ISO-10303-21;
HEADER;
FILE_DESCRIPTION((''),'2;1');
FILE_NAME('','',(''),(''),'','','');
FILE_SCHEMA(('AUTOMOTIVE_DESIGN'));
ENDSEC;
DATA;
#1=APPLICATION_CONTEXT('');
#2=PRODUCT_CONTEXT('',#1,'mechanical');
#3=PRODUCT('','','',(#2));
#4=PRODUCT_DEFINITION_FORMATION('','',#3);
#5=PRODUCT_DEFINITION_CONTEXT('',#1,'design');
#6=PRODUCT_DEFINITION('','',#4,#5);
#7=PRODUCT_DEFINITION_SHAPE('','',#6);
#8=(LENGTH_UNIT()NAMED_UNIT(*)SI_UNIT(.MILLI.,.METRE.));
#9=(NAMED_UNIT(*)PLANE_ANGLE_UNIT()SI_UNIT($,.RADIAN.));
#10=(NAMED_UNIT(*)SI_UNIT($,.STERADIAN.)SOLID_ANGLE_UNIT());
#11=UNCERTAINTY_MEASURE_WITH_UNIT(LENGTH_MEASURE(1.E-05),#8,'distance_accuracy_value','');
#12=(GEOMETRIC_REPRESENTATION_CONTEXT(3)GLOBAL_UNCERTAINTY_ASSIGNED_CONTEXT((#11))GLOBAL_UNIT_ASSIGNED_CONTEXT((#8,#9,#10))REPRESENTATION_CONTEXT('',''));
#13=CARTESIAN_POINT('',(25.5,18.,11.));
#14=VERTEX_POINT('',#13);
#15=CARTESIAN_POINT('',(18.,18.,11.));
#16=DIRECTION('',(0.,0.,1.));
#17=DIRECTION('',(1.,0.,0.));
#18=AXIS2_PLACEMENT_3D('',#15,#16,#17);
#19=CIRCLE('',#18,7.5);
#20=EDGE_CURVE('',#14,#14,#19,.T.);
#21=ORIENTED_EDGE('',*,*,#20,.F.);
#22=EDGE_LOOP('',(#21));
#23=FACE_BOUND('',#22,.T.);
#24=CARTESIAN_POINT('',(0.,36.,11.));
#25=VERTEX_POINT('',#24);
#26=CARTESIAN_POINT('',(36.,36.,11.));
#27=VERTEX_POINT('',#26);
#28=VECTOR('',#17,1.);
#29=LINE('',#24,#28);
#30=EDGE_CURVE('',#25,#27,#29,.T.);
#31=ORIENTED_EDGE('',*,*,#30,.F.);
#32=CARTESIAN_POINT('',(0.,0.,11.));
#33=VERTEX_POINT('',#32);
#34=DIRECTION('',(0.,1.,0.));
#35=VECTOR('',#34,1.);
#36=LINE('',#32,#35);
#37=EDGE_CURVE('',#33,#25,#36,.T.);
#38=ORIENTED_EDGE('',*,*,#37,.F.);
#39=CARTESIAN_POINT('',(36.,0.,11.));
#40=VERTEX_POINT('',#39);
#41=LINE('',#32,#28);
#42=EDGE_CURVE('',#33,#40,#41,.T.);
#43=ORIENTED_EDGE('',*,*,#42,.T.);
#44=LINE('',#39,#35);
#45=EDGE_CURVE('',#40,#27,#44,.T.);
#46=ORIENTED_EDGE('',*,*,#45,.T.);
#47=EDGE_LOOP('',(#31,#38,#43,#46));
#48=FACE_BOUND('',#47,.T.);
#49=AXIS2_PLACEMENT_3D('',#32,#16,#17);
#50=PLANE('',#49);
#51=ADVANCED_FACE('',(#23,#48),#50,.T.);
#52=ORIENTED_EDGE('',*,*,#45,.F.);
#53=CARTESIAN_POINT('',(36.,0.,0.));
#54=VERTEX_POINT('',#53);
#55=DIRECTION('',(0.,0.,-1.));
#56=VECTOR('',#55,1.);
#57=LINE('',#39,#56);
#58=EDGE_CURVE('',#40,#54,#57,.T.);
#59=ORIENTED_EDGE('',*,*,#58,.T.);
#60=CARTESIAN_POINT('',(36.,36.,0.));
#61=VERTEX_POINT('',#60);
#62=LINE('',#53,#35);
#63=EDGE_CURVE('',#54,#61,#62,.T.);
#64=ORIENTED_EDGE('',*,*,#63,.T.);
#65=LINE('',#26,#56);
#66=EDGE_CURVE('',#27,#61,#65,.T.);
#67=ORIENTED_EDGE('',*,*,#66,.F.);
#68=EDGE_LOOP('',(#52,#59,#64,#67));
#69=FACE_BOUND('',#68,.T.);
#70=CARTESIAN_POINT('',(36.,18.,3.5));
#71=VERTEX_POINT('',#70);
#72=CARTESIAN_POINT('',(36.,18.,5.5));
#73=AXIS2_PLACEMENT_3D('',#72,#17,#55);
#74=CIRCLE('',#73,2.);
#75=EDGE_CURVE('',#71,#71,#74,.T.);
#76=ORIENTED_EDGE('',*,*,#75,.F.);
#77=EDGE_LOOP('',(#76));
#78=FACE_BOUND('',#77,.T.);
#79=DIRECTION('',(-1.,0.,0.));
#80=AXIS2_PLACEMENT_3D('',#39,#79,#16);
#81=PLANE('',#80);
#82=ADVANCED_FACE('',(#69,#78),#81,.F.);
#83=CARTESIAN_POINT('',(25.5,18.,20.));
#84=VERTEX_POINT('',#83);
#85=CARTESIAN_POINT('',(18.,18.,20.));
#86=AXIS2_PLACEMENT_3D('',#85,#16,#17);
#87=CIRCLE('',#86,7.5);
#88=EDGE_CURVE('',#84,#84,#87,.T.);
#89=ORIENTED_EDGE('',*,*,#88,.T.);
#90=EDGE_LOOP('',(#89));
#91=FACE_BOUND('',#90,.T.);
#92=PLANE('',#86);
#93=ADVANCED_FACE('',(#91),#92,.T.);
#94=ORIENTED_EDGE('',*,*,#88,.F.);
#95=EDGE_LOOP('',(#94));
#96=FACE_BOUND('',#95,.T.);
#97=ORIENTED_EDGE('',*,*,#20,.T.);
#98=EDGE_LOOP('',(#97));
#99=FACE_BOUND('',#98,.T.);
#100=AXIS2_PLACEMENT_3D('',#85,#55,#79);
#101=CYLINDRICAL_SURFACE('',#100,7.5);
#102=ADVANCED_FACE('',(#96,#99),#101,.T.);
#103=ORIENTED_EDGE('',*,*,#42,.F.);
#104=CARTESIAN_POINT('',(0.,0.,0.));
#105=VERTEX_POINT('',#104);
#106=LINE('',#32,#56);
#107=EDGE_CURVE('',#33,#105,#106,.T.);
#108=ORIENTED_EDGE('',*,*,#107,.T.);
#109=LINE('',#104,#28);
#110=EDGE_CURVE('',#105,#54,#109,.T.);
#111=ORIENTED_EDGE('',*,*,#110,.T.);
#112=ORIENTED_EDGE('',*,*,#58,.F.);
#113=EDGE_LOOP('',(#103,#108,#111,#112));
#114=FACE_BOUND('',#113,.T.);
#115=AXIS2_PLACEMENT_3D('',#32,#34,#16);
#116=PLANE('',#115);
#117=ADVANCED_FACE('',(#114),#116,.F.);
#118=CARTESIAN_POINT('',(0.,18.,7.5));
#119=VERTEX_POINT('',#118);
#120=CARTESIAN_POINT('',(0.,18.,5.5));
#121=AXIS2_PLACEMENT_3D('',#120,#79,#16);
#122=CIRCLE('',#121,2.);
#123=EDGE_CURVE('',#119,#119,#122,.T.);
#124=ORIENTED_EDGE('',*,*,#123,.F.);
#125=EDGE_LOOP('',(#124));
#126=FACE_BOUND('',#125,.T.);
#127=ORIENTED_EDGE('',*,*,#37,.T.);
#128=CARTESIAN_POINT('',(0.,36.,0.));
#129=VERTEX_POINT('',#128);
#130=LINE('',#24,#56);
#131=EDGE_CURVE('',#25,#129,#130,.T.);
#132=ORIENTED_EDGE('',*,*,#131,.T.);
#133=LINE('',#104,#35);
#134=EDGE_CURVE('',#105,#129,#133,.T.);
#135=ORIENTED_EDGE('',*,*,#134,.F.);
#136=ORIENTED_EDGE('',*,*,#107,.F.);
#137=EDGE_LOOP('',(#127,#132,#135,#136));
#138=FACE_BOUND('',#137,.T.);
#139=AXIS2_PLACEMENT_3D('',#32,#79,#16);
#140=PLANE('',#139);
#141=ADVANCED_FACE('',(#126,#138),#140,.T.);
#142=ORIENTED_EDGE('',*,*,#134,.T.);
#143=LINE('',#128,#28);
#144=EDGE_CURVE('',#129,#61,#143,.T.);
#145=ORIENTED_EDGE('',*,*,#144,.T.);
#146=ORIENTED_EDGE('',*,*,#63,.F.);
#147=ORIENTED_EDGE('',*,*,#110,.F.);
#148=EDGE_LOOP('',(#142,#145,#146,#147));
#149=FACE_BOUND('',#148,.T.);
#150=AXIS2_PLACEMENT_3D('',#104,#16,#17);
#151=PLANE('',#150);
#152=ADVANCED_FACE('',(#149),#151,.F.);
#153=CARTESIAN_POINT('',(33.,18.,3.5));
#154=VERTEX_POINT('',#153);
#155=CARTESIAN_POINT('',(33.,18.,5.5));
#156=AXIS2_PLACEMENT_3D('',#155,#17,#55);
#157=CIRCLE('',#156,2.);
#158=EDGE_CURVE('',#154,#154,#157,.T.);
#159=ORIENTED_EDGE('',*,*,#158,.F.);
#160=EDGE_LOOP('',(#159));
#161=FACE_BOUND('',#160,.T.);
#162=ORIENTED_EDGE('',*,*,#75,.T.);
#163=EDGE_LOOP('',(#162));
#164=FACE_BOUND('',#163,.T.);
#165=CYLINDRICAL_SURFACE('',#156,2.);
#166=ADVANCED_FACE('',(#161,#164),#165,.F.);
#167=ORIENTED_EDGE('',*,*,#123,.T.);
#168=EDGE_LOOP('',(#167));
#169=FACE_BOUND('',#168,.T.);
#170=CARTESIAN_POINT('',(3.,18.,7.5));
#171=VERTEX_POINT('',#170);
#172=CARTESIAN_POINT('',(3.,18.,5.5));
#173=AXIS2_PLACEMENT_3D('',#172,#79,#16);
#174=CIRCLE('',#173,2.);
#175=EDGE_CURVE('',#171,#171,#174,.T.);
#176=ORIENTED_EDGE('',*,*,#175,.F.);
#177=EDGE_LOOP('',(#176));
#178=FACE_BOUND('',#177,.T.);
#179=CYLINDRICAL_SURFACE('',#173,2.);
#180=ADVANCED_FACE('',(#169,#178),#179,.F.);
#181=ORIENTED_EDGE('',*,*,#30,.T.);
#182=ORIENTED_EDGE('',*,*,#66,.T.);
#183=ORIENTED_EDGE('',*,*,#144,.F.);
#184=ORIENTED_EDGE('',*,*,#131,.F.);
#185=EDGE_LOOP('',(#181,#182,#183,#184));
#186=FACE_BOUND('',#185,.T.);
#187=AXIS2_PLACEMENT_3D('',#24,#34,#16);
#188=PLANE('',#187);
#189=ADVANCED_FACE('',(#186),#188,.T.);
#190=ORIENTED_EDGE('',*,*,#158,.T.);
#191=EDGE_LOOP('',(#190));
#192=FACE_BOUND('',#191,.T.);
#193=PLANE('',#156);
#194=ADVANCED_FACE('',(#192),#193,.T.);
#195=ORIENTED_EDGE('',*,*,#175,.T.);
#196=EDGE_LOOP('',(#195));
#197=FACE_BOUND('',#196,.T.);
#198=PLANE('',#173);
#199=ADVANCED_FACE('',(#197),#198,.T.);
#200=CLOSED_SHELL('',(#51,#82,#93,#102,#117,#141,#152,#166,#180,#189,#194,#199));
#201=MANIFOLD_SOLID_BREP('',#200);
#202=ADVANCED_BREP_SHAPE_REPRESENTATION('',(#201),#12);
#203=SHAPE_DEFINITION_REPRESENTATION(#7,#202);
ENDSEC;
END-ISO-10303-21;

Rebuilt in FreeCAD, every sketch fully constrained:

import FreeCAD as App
import Part
import Sketcher

V = App.Vector

doc = App.newDocument("Part")
body = doc.addObject("PartDesign::Body", "Body")

sketch1 = body.newObject("Sketcher::SketchObject", "Sketch")
sketch1.AttachmentSupport = (doc.getObject("XY_Plane"), [""])
sketch1.MapMode = "FlatFace"
sketch1.addGeometry([
    Part.LineSegment(V(0, 36, 0), V(0, 0, 0)),
    Part.LineSegment(V(0, 0, 0), V(36, 0, 0)),
    Part.LineSegment(V(36, 0, 0), V(36, 36, 0)),
    Part.LineSegment(V(36, 36, 0), V(0, 36, 0)),
], False)
sketch1.addConstraint([
    Sketcher.Constraint("Coincident", 0, 2, 1, 1),
    Sketcher.Constraint("Coincident", 1, 2, 2, 1),
    Sketcher.Constraint("Coincident", 2, 2, 3, 1),
    Sketcher.Constraint("Coincident", 3, 2, 0, 1),
    Sketcher.Constraint("Vertical", 0),
    Sketcher.Constraint("Horizontal", 1),
    Sketcher.Constraint("Vertical", 2),
    Sketcher.Constraint("Horizontal", 3),
    Sketcher.Constraint("Coincident", 0, 2, -1, 1),
    Sketcher.Constraint("Equal", 3, 0),
    Sketcher.Constraint("DistanceX", 1, 1, 1, 2, 36.0),
])
pad1 = body.newObject("PartDesign::Pad", "Pad")
pad1.Profile = sketch1
pad1.Length = 11

sketch2 = body.newObject("Sketcher::SketchObject", "Sketch001")
sketch2.AttachmentSupport = (doc.getObject("XY_Plane"), [""])
sketch2.MapMode = "FlatFace"
sketch2.AttachmentOffset = App.Placement(V(0, 0, 11), App.Rotation())
sketch2.addGeometry(Part.Circle(V(18, 18, 0), V(0, 0, 1), 7.5), False)
sketch2.addConstraint([
    Sketcher.Constraint("Diameter", 0, 15.0),
    Sketcher.Constraint("DistanceX", -1, 1, 0, 3, 18.0),
    Sketcher.Constraint("DistanceY", -1, 1, 0, 3, 18.0),
])
pad2 = body.newObject("PartDesign::Pad", "Pad001")
pad2.Profile = sketch2
pad2.Length = 9

sketch3 = body.newObject("Sketcher::SketchObject", "Sketch002")
sketch3.AttachmentSupport = (doc.getObject("YZ_Plane"), [""])
sketch3.MapMode = "FlatFace"
sketch3.AttachmentOffset = App.Placement(V(0, 0, 36), App.Rotation())
sketch3.addGeometry(Part.Circle(V(18, 5.5, 0), V(0, 0, 1), 2), False)
sketch3.addConstraint([
    Sketcher.Constraint("Diameter", 0, 4.0),
    Sketcher.Constraint("DistanceX", -1, 1, 0, 3, 18.0),
    Sketcher.Constraint("DistanceY", -1, 1, 0, 3, 5.5),
])
pocket1 = body.newObject("PartDesign::Pocket", "Pocket")
pocket1.Profile = sketch3
pocket1.Length = 3

sketch4 = body.newObject("Sketcher::SketchObject", "Sketch003")
sketch4.AttachmentSupport = (doc.getObject("YZ_Plane"), [""])
sketch4.MapMode = "FlatFace"
sketch4.AttachmentOffset = App.Placement(V(0, 0, 3), App.Rotation())
sketch4.addGeometry(Part.Circle(V(18, 5.5, 0), V(0, 0, 1), 2), False)
sketch4.addConstraint([
    Sketcher.Constraint("Diameter", 0, 4.0),
    Sketcher.Constraint("DistanceX", -1, 1, 0, 3, 18.0),
    Sketcher.Constraint("DistanceY", -1, 1, 0, 3, 5.5),
])
pocket2 = body.newObject("PartDesign::Pocket", "Pocket001")
pocket2.Profile = sketch4
pocket2.Length = 3

doc.recompute()
